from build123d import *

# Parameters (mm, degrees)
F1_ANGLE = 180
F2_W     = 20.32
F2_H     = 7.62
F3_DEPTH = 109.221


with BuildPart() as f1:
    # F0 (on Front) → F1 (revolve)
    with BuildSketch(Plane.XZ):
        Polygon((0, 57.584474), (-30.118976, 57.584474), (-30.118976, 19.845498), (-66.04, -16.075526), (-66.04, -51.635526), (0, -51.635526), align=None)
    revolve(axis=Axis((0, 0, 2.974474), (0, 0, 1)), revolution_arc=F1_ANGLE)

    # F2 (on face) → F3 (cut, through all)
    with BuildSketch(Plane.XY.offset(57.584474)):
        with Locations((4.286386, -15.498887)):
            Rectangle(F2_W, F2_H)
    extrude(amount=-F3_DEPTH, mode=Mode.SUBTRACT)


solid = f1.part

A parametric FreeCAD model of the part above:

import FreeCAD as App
import Part
import Sketcher
from FreeCAD import Vector
Q = App.Units.Quantity


def add_polygon(sketch, points):
    """Adds a closed chain of lines whose ends are joined by coincident constraints."""
    first, n = sketch.GeometryCount, len(points)
    for a, b in zip(points, points[1:] + points[:1]):
        sketch.addGeometry(Part.LineSegment(App.Vector(*a, 0), App.Vector(*b, 0)), False)
    for i in range(n):
        sketch.addConstraint(Sketcher.Constraint("Coincident", first + i, 2, first + (i + 1) % n, 1))

doc = App.newDocument("Part")
params = doc.addObject("Spreadsheet::Sheet", "Params")
for row, (alias, value) in enumerate([
    ("sketch1_length", "2 in"),
    ("sketch1_width", "2.6 in"),
    ("sketch1_height", "1.4 in"),
    ("sketch1_height2", "4.3 in"),
    ("revolution_angle", "180 deg"),
    ("sketch2_width", "0.8 in"),
    ("sketch2_height", "0.3 in"),
], start=1):
    params.set(f"A{row}", alias)
    params.set(f"B{row}", "=" + value)
    params.setAlias(f"B{row}", alias)

body = doc.addObject("PartDesign::Body", "Body")

# Sketch on XZ plane
sketch1 = doc.addObject("Sketcher::SketchObject", "Sketch")
body.addObject(sketch1)
sketch1.AttachmentSupport = (doc.XZ_Plane, [""])
sketch1.MapMode = "FlatFace"
add_polygon(sketch1, [(0, 58), (-30, 58), (-30, 20), (-66, -16), (-66, -52), (0, -52)])  # lines 0-5
sketch1.addConstraint([
    Sketcher.Constraint("Horizontal", 0),
    Sketcher.Constraint("Vertical", 1),
    Sketcher.Constraint("Vertical", 3),
    Sketcher.Constraint("Horizontal", 4),
    Sketcher.Constraint("Vertical", 5),
    Sketcher.Constraint("PointOnObject", 4, 2, -2),
    Sketcher.Constraint("Distance", 2, Q("2 in")),
    Sketcher.Constraint("DistanceX", 4, 1, 4, 2, Q("2.6 in")),
    Sketcher.Constraint("DistanceY", 3, 2, 3, 1, Q("1.4 in")),
    Sketcher.Constraint("DistanceY", 5, 1, 5, 2, Q("4.3 in")),
    Sketcher.Constraint("Angle", 2, Q("-135 deg")),
    Sketcher.Constraint("DistanceY", -1, 1, 0, 2, 57.584474),
])
sketch1.setExpression("Constraints[12]", "Params.sketch1_length")
sketch1.setExpression("Constraints[13]", "Params.sketch1_width")
sketch1.setExpression("Constraints[14]", "Params.sketch1_height")
sketch1.setExpression("Constraints[15]", "Params.sketch1_height2")
revolution = doc.addObject("PartDesign::Revolution", "Revolution")
body.addObject(revolution)
revolution.Profile = sketch1
revolution.ReferenceAxis = (sketch1, ["V_Axis"])
revolution.setExpression("Angle", "Params.revolution_angle")

# Sketch on XY plane
sketch2 = doc.addObject("Sketcher::SketchObject", "Sketch001")
body.addObject(sketch2)
sketch2.AttachmentSupport = (doc.XY_Plane, [""])
sketch2.MapMode = "FlatFace"
sketch2.AttachmentOffset = App.Placement(Vector(0, 0, 57.584474), App.Rotation())
add_polygon(sketch2, [(-6, -12), (-6, -19), (14, -19), (14, -12)])  # lines 0-3
sketch2.addConstraint([
    Sketcher.Constraint("Vertical", 0),
    Sketcher.Constraint("Horizontal", 1),
    Sketcher.Constraint("Vertical", 2),
    Sketcher.Constraint("Horizontal", 3),
    Sketcher.Constraint("DistanceX", 1, 1, 1, 2, Q("0.8 in")),
    Sketcher.Constraint("DistanceY", 0, 2, 0, 1, Q("0.3 in")),
    Sketcher.Constraint("DistanceX", 0, 2, -1, 1, 5.873614),
    Sketcher.Constraint("DistanceY", 0, 2, -1, 1, 19.308887),
])
sketch2.setExpression("Constraints[8]", "Params.sketch2_width")
sketch2.setExpression("Constraints[9]", "Params.sketch2_height")
pocket1 = doc.addObject("PartDesign::Pocket", "Pocket")
body.addObject(pocket1)
pocket1.Profile = sketch2
pocket1.Type = "ThroughAll"

doc.recompute()
